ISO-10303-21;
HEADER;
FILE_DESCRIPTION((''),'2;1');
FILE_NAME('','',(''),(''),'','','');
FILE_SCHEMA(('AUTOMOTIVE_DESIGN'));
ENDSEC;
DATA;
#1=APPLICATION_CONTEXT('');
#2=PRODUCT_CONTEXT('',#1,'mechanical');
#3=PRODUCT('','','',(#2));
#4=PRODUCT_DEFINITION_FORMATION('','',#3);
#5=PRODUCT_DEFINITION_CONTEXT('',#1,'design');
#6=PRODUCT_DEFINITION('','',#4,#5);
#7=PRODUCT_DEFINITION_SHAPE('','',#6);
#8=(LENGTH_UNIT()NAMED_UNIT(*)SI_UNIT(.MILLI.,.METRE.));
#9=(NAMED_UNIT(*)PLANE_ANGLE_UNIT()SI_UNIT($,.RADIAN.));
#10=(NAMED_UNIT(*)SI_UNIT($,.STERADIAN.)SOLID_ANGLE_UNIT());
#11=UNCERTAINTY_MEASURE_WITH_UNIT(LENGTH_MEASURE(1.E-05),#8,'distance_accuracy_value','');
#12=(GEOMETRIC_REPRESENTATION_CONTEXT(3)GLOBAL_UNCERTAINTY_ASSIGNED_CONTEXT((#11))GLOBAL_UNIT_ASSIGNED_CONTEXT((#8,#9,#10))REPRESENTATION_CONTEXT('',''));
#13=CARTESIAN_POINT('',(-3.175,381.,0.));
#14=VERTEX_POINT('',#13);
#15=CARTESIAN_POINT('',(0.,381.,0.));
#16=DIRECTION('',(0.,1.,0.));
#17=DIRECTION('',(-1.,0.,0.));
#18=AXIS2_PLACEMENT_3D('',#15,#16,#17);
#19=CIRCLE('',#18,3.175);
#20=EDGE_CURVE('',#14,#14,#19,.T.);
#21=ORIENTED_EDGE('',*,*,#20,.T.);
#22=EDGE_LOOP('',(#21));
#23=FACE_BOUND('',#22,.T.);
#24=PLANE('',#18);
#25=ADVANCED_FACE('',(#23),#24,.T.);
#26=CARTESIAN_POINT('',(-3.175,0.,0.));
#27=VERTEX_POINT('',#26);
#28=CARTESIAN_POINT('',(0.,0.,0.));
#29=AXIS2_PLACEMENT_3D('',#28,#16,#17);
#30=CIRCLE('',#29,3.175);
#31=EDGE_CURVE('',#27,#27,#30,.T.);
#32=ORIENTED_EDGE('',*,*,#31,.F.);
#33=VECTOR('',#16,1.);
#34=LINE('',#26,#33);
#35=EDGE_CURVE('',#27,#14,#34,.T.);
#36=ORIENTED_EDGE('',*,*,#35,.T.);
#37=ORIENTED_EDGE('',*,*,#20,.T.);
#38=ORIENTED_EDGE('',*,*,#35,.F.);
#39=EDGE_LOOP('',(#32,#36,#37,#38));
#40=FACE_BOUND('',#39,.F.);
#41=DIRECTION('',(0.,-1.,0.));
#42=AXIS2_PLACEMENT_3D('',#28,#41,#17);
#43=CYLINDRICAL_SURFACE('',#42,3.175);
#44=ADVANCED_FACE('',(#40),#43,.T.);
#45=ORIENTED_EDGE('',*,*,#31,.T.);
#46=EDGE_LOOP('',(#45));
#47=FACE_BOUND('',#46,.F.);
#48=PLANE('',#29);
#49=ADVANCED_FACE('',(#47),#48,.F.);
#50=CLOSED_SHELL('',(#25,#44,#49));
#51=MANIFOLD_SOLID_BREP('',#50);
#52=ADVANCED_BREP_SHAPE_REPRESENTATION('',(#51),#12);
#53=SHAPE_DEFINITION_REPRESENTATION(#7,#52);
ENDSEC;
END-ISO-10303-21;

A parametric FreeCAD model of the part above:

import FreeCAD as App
import Part
import Sketcher
Q = App.Units.Quantity

doc = App.newDocument("Part")
body = doc.addObject("PartDesign::Body", "Body")

# Sketch on XZ plane
sketch1 = body.newObject("Sketcher::SketchObject", "Sketch")
sketch1.AttachmentSupport = (doc.getObject("XZ_Plane"), [""])
sketch1.MapMode = "FlatFace"
sketch1.addGeometry(Part.Circle(App.Vector(0, 0, 0), App.Vector(0, 0, 1), 3.2), False)
sketch1.addConstraint([
    Sketcher.Constraint("Coincident", 0, 3, -1, 1),
    Sketcher.Constraint("Diameter", 0, Q("0.25 in")),
])
pad1 = body.newObject("PartDesign::Pad", "Pad")
pad1.Profile = sketch1
pad1.Length = Q("15 in")
pad1.Reversed = True

doc.recompute()
